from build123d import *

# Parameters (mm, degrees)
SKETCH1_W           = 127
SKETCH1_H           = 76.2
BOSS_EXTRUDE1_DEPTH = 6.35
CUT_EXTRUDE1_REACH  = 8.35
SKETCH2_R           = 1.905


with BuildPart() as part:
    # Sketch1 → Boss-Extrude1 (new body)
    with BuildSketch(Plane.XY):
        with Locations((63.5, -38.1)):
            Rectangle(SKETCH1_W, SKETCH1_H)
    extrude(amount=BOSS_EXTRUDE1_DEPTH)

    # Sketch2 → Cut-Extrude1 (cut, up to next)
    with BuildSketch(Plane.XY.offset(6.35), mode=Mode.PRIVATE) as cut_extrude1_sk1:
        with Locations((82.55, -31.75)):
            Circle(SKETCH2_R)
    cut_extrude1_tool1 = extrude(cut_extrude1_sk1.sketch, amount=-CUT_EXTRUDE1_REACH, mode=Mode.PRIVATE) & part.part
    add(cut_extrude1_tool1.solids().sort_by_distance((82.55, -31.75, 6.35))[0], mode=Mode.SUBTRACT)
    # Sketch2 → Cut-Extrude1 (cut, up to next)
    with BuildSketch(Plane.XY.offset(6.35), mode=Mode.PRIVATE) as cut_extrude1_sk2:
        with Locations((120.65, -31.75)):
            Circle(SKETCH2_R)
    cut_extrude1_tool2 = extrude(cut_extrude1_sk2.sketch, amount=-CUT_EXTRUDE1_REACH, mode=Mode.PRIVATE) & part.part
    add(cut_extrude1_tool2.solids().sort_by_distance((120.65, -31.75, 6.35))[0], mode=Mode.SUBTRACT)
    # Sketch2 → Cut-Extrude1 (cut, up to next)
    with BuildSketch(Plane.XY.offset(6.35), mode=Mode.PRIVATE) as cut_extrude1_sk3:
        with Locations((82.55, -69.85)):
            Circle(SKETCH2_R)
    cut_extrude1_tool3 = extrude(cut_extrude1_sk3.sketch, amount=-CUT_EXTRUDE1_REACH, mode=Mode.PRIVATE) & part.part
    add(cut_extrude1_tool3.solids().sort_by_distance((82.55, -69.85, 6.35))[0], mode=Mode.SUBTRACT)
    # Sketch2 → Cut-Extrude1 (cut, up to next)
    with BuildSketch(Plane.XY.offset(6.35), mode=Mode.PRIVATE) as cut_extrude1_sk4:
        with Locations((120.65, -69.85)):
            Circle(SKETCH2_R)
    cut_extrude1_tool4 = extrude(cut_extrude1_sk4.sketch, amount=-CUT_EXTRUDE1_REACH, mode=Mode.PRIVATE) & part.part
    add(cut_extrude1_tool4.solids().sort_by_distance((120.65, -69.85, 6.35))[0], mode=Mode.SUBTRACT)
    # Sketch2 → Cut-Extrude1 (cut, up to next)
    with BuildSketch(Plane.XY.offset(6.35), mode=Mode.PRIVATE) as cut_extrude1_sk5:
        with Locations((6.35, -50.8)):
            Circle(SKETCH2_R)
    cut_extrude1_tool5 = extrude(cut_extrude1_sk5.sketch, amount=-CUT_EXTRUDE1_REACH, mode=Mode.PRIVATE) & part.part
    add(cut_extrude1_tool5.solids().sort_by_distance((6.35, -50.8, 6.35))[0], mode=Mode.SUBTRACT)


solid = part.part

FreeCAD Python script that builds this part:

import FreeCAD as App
import Part
import Sketcher
Q = App.Units.Quantity


def add_polygon(sketch, points):
    """Adds a closed chain of lines whose ends are joined by coincident constraints."""
    first, n = sketch.GeometryCount, len(points)
    for a, b in zip(points, points[1:] + points[:1]):
        sketch.addGeometry(Part.LineSegment(App.Vector(*a, 0), App.Vector(*b, 0)), False)
    for i in range(n):
        sketch.addConstraint(Sketcher.Constraint("Coincident", first + i, 2, first + (i + 1) % n, 1))

doc = App.newDocument("Part")
body = doc.addObject("PartDesign::Body", "Body")

# Sketch on XY plane
sketch1 = doc.addObject("Sketcher::SketchObject", "Sketch")
body.addObject(sketch1)
sketch1.AttachmentSupport = (doc.XY_Plane, [""])
sketch1.MapMode = "FlatFace"
add_polygon(sketch1, [(0, 0), (0, -76), (127, -76), (127, 0)])  # lines 0-3
sketch1.addConstraint(Sketcher.Constraint("Vertical", 0))
sketch1.addConstraint(Sketcher.Constraint("Horizontal", 1))
sketch1.addConstraint(Sketcher.Constraint("Vertical", 2))
sketch1.addConstraint(Sketcher.Constraint("Horizontal", 3))
sketch1.addConstraint(Sketcher.Constraint("Coincident", 3, 2, -1, 1))
sketch1.addConstraint(Sketcher.Constraint("DistanceX", 1, 1, 1, 2, Q("5 in")))
sketch1.addConstraint(Sketcher.Constraint("DistanceY", 0, 2, 0, 1, Q("3 in")))
pad1 = doc.addObject("PartDesign::Pad", "Pad")
body.addObject(pad1)
pad1.Profile = sketch1
pad1.Length = Q("0.25 in")

# Sketch on XY plane
sketch2 = doc.addObject("Sketcher::SketchObject", "Sketch001")
body.addObject(sketch2)
sketch2.AttachmentSupport = (doc.XY_Plane, [""])
sketch2.MapMode = "FlatFace"
sketch2.AttachmentOffset = App.Placement(App.Vector(0, 0, 0.25 * 25.4), App.Rotation())
sketch2.addGeometry(Part.Circle(App.Vector(82.5, -31.8, 0), App.Vector(0, 0, 1), 1.9), False)
sketch2.addConstraint(Sketcher.Constraint("Diameter", 0, Q("0.15 in")))
sketch2.addConstraint(Sketcher.Constraint("DistanceX", -1, 1, 0, 3, Q("3.25 in")))
sketch2.addConstraint(Sketcher.Constraint("DistanceY", 0, 3, -1, 1, Q("1.25 in")))
pocket1 = doc.addObject("PartDesign::Pocket", "Pocket")
body.addObject(pocket1)
pocket1.Profile = sketch2
pocket1.Type = "UpToFirst"

# Sketch on XY plane
sketch3 = doc.addObject("Sketcher::SketchObject", "Sketch002")
body.addObject(sketch3)
sketch3.AttachmentSupport = (doc.XY_Plane, [""])
sketch3.MapMode = "FlatFace"
sketch3.AttachmentOffset = App.Placement(App.Vector(0, 0, 0.25 * 25.4), App.Rotation())
sketch3.addGeometry(Part.Circle(App.Vector(120.7, -31.8, 0), App.Vector(0, 0, 1), 1.9), False)
sketch3.addConstraint(Sketcher.Constraint("Diameter", 0, Q("0.15 in")))
sketch3.addConstraint(Sketcher.Constraint("DistanceX", -1, 1, 0, 3, Q("4.75 in")))
sketch3.addConstraint(Sketcher.Constraint("DistanceY", 0, 3, -1, 1, Q("1.25 in")))
pocket2 = doc.addObject("PartDesign::Pocket", "Pocket001")
body.addObject(pocket2)
pocket2.Profile = sketch3
pocket2.Type = "UpToFirst"

# Sketch on XY plane
sketch4 = doc.addObject("Sketcher::SketchObject", "Sketch003")
body.addObject(sketch4)
sketch4.AttachmentSupport = (doc.XY_Plane, [""])
sketch4.MapMode = "FlatFace"
sketch4.AttachmentOffset = App.Placement(App.Vector(0, 0, 0.25 * 25.4), App.Rotation())
sketch4.addGeometry(Part.Circle(App.Vector(82.5, -69.8, 0), App.Vector(0, 0, 1), 1.9), False)
sketch4.addConstraint(Sketcher.Constraint("Diameter", 0, Q("0.15 in")))
sketch4.addConstraint(Sketcher.Constraint("DistanceX", -1, 1, 0, 3, Q("3.25 in")))
sketch4.addConstraint(Sketcher.Constraint("DistanceY", 0, 3, -1, 1, Q("2.75 in")))
pocket3 = doc.addObject("PartDesign::Pocket", "Pocket002")
body.addObject(pocket3)
pocket3.Profile = sketch4
pocket3.Type = "UpToFirst"

# Sketch on XY plane
sketch5 = doc.addObject("Sketcher::SketchObject", "Sketch004")
body.addObject(sketch5)
sketch5.AttachmentSupport = (doc.XY_Plane, [""])
sketch5.MapMode = "FlatFace"
sketch5.AttachmentOffset = App.Placement(App.Vector(0, 0, 0.25 * 25.4), App.Rotation())
sketch5.addGeometry(Part.Circle(App.Vector(120.7, -69.8, 0), App.Vector(0, 0, 1), 1.9), False)
sketch5.addConstraint(Sketcher.Constraint("Diameter", 0, Q("0.15 in")))
sketch5.addConstraint(Sketcher.Constraint("DistanceX", -1, 1, 0, 3, Q("4.75 in")))
sketch5.addConstraint(Sketcher.Constraint("DistanceY", 0, 3, -1, 1, Q("2.75 in")))
pocket4 = doc.addObject("PartDesign::Pocket", "Pocket003")
body.addObject(pocket4)
pocket4.Profile = sketch5
pocket4.Type = "UpToFirst"

# Sketch on XY plane
sketch6 = doc.addObject("Sketcher::SketchObject", "Sketch005")
body.addObject(sketch6)
sketch6.AttachmentSupport = (doc.XY_Plane, [""])
sketch6.MapMode = "FlatFace"
sketch6.AttachmentOffset = App.Placement(App.Vector(0, 0, 0.25 * 25.4), App.Rotation())
sketch6.addGeometry(Part.Circle(App.Vector(6.3, -50.8, 0), App.Vector(0, 0, 1), 1.9), False)
sketch6.addConstraint(Sketcher.Constraint("Diameter", 0, Q("0.15 in")))
sketch6.addConstraint(Sketcher.Constraint("DistanceY", 0, 3, -1, 1, Q("2 in")))
sketch6.addConstraint(Sketcher.Constraint("DistanceX", -1, 1, 0, 3, Q("0.25 in")))
pocket5 = doc.addObject("PartDesign::Pocket", "Pocket004")
body.addObject(pocket5)
pocket5.Profile = sketch6
pocket5.Type = "UpToFirst"

doc.recompute()
